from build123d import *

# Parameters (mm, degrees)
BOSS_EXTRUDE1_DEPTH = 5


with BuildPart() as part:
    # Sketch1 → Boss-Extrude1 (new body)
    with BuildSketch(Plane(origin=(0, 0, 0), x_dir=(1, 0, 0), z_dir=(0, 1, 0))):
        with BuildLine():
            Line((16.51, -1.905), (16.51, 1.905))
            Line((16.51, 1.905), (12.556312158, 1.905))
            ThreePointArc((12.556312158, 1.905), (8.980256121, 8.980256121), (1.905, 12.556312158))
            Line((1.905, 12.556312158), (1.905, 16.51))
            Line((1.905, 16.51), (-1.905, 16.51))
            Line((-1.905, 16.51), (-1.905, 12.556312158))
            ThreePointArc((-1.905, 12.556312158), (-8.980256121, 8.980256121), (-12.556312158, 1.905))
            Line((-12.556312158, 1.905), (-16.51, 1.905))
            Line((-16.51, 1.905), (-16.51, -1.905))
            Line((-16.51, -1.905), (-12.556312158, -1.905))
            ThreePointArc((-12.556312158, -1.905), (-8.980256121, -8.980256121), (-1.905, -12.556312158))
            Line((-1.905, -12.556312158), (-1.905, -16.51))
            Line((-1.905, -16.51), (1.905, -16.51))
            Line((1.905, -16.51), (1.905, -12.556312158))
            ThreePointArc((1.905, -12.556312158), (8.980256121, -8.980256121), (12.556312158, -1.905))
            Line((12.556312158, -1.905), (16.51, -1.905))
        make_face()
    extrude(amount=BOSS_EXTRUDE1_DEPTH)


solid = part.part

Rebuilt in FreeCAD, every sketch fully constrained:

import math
import FreeCAD as App
import Part
import Sketcher

V = App.Vector
Q = App.Units.Quantity

doc = App.newDocument("Part")
body = doc.addObject("PartDesign::Body", "Body")

sketch1 = body.newObject("Sketcher::SketchObject", "Sketch")
sketch1.AttachmentSupport = (doc.getObject("XZ_Plane"), [""])
sketch1.MapMode = "FlatFace"
sketch1.addGeometry(Part.LineSegment(V(16.5, 1.9, 0), V(16.5, -1.9, 0)), False)
sketch1.addGeometry(Part.LineSegment(V(16.5, -1.9, 0), V(12.6, -1.9, 0)), False)
sketch1.addGeometry(Part.ArcOfCircle(Part.Circle(V(0, 0, 0), V(0, 0, 1), 12.7), math.radians(-81), math.radians(-9)), False)
sketch1.addGeometry(Part.LineSegment(V(1.9, -12.6, 0), V(1.9, -16.5, 0)), False)
sketch1.addGeometry(Part.LineSegment(V(1.9, -16.5, 0), V(-1.9, -16.5, 0)), False)
sketch1.addGeometry(Part.LineSegment(V(-1.9, -16.5, 0), V(-1.9, -12.6, 0)), False)
sketch1.addGeometry(Part.ArcOfCircle(Part.Circle(V(0, 0, 0), V(0, 0, 1), 12.7), math.radians(-171), math.radians(-99)), False)
sketch1.addGeometry(Part.LineSegment(V(-12.6, -1.9, 0), V(-16.5, -1.9, 0)), False)
sketch1.addGeometry(Part.LineSegment(V(-16.5, -1.9, 0), V(-16.5, 1.9, 0)), False)
sketch1.addGeometry(Part.LineSegment(V(-16.5, 1.9, 0), V(-12.6, 1.9, 0)), False)
sketch1.addGeometry(Part.ArcOfCircle(Part.Circle(V(0, 0, 0), V(0, 0, 1), 12.7), math.radians(99), math.radians(171)), False)
sketch1.addGeometry(Part.LineSegment(V(-1.9, 12.6, 0), V(-1.9, 16.5, 0)), False)
sketch1.addGeometry(Part.LineSegment(V(-1.9, 16.5, 0), V(1.9, 16.5, 0)), False)
sketch1.addGeometry(Part.LineSegment(V(1.9, 16.5, 0), V(1.9, 12.6, 0)), False)
sketch1.addGeometry(Part.ArcOfCircle(Part.Circle(V(0, 0, 0), V(0, 0, 1), 12.7), math.radians(9), math.radians(81)), False)
sketch1.addGeometry(Part.LineSegment(V(12.6, 1.9, 0), V(16.5, 1.9, 0)), False)
sketch1.addConstraint(Sketcher.Constraint("Coincident", 0, 2, 1, 1))
sketch1.addConstraint(Sketcher.Constraint("Coincident", 1, 2, 2, 2))
sketch1.addConstraint(Sketcher.Constraint("Coincident", 2, 1, 3, 1))
sketch1.addConstraint(Sketcher.Constraint("Coincident", 3, 2, 4, 1))
sketch1.addConstraint(Sketcher.Constraint("Coincident", 4, 2, 5, 1))
sketch1.addConstraint(Sketcher.Constraint("Coincident", 5, 2, 6, 2))
sketch1.addConstraint(Sketcher.Constraint("Coincident", 6, 1, 7, 1))
sketch1.addConstraint(Sketcher.Constraint("Coincident", 7, 2, 8, 1))
sketch1.addConstraint(Sketcher.Constraint("Coincident", 8, 2, 9, 1))
sketch1.addConstraint(Sketcher.Constraint("Coincident", 9, 2, 10, 2))
sketch1.addConstraint(Sketcher.Constraint("Coincident", 10, 1, 11, 1))
sketch1.addConstraint(Sketcher.Constraint("Coincident", 11, 2, 12, 1))
sketch1.addConstraint(Sketcher.Constraint("Coincident", 12, 2, 13, 1))
sketch1.addConstraint(Sketcher.Constraint("Coincident", 13, 2, 14, 2))
sketch1.addConstraint(Sketcher.Constraint("Coincident", 14, 1, 15, 1))
sketch1.addConstraint(Sketcher.Constraint("Coincident", 15, 2, 0, 1))
sketch1.addConstraint(Sketcher.Constraint("Vertical", 0))
sketch1.addConstraint(Sketcher.Constraint("Horizontal", 1))
sketch1.addConstraint(Sketcher.Constraint("Vertical", 3))
sketch1.addConstraint(Sketcher.Constraint("Horizontal", 4))
sketch1.addConstraint(Sketcher.Constraint("Vertical", 5))
sketch1.addConstraint(Sketcher.Constraint("Horizontal", 7))
sketch1.addConstraint(Sketcher.Constraint("Vertical", 8))
sketch1.addConstraint(Sketcher.Constraint("Horizontal", 9))
sketch1.addConstraint(Sketcher.Constraint("Vertical", 11))
sketch1.addConstraint(Sketcher.Constraint("Horizontal", 12))
sketch1.addConstraint(Sketcher.Constraint("Vertical", 13))
sketch1.addConstraint(Sketcher.Constraint("Horizontal", 15))
sketch1.addConstraint(Sketcher.Constraint("Coincident", 2, 3, -1, 1))
sketch1.addConstraint(Sketcher.Constraint("Coincident", 6, 3, -1, 1))
sketch1.addConstraint(Sketcher.Constraint("Coincident", 10, 3, -1, 1))
sketch1.addConstraint(Sketcher.Constraint("Coincident", 14, 3, -1, 1))
sketch1.addConstraint(Sketcher.Constraint("Equal", 2, 6))
sketch1.addConstraint(Sketcher.Constraint("Equal", 6, 10))
sketch1.addConstraint(Sketcher.Constraint("Equal", 10, 14))
sketch1.addConstraint(Sketcher.Constraint("Symmetric", 0, 2, 8, 2, -1, 1))
sketch1.addConstraint(Sketcher.Constraint("Symmetric", 3, 2, 11, 2, -1, 1))
sketch1.addConstraint(Sketcher.Constraint("Horizontal", 2, 1, 5, 2))
sketch1.addConstraint(Sketcher.Constraint("Horizontal", 1, 2, 6, 1))
sketch1.addConstraint(Sketcher.Constraint("Horizontal", 10, 1, 13, 2))
sketch1.addConstraint(Sketcher.Constraint("Horizontal", 9, 2, 14, 1))
sketch1.addConstraint(Sketcher.Constraint("Equal", 12, 0))
sketch1.addConstraint(Sketcher.Constraint("Equal", 15, 3))
sketch1.addConstraint(Sketcher.Constraint("Radius", 2, Q("0.5 in")))
sketch1.addConstraint(Sketcher.Constraint("DistanceX", 4, 2, 4, 1, Q("0.15 in")))
sketch1.addConstraint(Sketcher.Constraint("DistanceX", -1, 1, 0, 2, Q("0.65 in")))
pad1 = body.newObject("PartDesign::Pad", "Pad")
pad1.Profile = sketch1
pad1.Length = 5
pad1.Reversed = True

doc.recompute()
